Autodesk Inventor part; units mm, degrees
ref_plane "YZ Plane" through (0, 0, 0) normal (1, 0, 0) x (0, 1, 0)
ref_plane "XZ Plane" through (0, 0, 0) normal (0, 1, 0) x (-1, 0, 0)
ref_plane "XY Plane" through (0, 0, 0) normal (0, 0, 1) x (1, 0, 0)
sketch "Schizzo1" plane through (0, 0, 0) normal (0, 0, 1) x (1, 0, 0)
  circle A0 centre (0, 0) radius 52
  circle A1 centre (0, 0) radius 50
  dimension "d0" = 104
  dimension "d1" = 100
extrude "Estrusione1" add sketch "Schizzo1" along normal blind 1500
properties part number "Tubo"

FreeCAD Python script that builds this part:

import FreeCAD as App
import Part
import Sketcher
from FreeCAD import Vector
Q = App.Units.Quantity

doc = App.newDocument("Part")
body = doc.addObject("PartDesign::Body", "Body")

sketch1 = body.newObject("Sketcher::SketchObject", "Sketch")
sketch1.AttachmentSupport = (doc.getObject("XY_Plane"), [""])
sketch1.MapMode = "FlatFace"
sketch1.addGeometry([
    Part.Circle(Vector(0, 0, 0), Vector(0, 0, 1), 52),
    Part.Circle(Vector(0, 0, 0), Vector(0, 0, 1), 50),
], False)
sketch1.addConstraint([
    Sketcher.Constraint("Coincident", 0, 3, -1, 1),
    Sketcher.Constraint("Coincident", 1, 3, -1, 1),
    Sketcher.Constraint("Diameter", 0, Q("104 mm")),
    Sketcher.Constraint("Diameter", 1, Q("100 mm")),
])
pad1 = body.newObject("PartDesign::Pad", "Pad")
pad1.Profile = sketch1
pad1.Length = 1500

doc.recompute()
